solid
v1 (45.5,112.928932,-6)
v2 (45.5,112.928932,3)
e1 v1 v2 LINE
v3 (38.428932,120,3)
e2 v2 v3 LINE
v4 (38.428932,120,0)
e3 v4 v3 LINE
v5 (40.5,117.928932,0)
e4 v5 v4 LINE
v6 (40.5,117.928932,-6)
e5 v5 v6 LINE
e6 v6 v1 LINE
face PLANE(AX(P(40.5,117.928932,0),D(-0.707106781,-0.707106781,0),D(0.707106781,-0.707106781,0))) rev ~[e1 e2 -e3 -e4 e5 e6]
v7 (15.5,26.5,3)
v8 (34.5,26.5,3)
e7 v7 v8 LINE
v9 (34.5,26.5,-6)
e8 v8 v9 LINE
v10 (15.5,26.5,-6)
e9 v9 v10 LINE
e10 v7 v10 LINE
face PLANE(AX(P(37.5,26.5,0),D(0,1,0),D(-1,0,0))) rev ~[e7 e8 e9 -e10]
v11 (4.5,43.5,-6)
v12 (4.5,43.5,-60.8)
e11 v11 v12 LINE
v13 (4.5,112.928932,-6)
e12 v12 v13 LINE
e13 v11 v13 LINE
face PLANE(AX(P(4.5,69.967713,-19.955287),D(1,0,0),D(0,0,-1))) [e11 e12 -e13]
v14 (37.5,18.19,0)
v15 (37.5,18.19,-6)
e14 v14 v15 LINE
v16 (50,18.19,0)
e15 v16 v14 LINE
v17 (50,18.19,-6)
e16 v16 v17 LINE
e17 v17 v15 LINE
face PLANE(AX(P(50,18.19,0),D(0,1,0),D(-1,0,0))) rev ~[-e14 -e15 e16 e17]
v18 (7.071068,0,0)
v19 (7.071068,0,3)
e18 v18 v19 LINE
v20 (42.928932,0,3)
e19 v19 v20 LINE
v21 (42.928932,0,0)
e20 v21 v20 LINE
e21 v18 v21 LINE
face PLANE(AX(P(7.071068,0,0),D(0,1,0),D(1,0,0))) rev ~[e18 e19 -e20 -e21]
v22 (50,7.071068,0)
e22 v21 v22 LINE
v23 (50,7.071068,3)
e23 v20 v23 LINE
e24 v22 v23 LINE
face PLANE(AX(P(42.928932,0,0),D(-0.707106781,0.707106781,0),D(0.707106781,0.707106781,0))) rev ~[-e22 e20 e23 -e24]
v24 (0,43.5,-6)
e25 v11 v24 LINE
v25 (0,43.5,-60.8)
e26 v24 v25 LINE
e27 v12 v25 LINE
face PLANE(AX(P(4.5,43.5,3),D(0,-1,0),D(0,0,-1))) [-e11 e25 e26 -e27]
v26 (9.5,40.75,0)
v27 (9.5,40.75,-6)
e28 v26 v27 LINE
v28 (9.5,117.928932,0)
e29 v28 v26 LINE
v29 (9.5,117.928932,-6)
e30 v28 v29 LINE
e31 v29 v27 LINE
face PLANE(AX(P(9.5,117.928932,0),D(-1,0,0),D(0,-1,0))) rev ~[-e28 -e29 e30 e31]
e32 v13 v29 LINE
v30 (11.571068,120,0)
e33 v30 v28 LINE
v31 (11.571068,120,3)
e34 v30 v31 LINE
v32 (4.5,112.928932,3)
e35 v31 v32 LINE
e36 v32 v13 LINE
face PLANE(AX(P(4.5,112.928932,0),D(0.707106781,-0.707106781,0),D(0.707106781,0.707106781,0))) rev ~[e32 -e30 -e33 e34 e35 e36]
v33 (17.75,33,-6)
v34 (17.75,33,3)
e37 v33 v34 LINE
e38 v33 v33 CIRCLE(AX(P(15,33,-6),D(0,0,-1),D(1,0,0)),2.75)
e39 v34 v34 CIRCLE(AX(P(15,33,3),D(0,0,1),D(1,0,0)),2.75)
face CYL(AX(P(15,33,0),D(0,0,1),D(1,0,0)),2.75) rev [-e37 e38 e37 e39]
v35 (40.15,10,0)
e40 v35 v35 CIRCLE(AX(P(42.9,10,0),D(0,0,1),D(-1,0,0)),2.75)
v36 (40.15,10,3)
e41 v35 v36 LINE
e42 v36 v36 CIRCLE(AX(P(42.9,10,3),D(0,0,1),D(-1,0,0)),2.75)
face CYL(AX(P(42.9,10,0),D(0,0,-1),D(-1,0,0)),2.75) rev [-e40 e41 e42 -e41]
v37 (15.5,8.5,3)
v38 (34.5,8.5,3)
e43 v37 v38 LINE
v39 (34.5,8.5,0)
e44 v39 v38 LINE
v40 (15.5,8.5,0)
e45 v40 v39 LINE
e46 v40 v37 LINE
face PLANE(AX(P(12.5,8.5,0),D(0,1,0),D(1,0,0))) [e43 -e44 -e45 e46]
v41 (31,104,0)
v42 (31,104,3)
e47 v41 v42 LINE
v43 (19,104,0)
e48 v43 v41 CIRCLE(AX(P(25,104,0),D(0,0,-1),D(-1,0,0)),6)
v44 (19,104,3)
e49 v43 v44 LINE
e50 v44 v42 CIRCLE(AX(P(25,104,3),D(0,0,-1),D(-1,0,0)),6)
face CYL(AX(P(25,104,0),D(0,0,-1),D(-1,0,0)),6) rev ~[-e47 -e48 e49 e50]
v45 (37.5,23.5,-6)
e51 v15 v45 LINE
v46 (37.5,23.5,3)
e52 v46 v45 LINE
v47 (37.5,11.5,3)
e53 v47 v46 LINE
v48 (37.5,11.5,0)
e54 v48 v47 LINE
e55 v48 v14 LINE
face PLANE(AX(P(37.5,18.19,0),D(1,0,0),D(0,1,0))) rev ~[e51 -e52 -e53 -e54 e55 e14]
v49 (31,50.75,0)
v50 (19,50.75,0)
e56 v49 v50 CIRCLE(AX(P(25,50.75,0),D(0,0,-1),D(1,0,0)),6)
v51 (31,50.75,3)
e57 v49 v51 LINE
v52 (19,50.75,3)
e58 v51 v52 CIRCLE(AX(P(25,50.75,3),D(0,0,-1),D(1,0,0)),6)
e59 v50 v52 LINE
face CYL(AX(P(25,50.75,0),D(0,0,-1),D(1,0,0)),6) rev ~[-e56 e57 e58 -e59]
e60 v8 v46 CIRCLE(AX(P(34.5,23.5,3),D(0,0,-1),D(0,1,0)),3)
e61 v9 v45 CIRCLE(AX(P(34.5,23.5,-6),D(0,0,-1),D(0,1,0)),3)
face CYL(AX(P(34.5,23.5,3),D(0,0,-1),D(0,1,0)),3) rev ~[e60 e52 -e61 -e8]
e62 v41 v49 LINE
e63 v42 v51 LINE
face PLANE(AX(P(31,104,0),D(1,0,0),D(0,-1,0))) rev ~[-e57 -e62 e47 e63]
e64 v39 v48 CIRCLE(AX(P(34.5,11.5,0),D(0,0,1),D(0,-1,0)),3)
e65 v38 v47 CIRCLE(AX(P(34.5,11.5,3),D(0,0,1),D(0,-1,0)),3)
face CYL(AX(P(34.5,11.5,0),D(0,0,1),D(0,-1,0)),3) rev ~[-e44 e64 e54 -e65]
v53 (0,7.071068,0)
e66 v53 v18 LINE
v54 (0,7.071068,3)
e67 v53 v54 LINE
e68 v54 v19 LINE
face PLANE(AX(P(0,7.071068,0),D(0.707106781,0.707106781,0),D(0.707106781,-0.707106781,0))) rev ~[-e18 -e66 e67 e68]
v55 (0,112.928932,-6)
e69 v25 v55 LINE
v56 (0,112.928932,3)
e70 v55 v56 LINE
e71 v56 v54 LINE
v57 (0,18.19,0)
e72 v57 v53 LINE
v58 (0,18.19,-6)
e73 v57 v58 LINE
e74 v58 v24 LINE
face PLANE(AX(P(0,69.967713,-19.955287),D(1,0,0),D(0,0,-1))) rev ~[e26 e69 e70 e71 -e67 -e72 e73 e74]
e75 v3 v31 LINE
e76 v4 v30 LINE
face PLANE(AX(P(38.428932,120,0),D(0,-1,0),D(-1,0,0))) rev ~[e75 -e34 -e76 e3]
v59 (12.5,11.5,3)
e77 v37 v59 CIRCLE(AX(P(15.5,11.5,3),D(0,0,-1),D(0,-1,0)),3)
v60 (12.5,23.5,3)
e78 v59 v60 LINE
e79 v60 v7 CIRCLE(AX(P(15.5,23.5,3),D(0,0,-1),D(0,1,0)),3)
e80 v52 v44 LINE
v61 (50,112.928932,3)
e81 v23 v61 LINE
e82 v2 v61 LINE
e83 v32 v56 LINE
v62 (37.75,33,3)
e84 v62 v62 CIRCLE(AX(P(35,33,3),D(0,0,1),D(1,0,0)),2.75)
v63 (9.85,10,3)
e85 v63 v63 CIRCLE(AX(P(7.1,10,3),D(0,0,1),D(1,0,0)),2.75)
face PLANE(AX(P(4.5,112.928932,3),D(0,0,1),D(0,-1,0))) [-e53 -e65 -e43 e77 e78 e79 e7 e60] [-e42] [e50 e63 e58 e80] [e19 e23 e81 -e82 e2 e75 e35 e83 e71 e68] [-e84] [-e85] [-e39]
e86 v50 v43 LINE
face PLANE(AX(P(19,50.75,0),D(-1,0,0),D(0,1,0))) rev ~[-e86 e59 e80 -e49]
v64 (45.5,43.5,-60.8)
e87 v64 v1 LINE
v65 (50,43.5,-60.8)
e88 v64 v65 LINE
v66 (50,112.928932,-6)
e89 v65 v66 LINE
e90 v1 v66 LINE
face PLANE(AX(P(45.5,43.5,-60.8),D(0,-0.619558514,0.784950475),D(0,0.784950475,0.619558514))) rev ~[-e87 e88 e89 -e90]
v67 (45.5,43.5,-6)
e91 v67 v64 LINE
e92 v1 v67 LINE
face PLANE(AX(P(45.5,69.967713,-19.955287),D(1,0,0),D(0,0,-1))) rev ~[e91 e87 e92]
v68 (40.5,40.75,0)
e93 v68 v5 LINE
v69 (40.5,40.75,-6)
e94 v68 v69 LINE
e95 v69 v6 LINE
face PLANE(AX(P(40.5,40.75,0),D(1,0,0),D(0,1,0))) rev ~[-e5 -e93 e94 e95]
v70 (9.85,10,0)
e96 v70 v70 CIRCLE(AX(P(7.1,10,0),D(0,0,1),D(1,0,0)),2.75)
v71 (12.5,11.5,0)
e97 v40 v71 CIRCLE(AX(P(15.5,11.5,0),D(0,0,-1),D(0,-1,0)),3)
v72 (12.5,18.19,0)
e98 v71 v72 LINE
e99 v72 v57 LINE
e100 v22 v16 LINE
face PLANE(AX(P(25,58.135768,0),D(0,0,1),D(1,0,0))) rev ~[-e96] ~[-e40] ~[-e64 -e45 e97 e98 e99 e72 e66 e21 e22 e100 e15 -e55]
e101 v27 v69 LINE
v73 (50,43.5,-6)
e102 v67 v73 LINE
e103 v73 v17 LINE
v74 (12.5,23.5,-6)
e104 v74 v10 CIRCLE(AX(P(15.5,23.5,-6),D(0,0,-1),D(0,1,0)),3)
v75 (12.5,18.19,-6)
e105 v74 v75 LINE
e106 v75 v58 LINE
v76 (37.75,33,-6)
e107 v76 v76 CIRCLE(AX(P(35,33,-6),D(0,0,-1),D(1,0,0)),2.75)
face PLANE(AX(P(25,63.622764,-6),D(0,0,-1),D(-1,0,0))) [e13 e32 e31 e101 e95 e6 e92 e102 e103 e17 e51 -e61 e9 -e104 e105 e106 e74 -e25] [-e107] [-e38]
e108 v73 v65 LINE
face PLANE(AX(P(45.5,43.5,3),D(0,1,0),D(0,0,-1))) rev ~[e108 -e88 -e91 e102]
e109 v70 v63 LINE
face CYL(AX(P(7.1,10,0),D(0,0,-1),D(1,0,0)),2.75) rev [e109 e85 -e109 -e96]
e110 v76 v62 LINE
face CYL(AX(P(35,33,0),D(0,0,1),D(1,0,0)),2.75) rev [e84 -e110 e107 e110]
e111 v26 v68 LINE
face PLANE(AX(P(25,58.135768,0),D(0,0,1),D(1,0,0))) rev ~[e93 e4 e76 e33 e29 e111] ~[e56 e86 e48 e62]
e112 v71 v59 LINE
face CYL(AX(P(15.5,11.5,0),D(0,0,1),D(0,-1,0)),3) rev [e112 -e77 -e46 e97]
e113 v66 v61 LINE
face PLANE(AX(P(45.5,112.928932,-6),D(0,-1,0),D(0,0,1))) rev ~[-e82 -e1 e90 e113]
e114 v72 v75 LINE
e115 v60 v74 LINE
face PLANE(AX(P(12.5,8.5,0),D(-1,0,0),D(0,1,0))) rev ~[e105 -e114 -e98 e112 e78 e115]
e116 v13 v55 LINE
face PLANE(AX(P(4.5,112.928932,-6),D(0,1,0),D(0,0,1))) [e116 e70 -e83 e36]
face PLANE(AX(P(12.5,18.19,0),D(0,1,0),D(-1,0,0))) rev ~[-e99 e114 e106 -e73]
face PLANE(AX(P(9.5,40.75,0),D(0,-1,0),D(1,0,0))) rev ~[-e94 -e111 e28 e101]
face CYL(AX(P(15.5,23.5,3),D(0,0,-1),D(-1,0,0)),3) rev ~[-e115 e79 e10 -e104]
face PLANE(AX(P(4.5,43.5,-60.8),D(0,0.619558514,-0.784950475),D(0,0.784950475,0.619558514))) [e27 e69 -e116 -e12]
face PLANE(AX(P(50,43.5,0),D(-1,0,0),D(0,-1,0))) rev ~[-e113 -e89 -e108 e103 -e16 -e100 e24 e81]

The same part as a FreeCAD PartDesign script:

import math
import FreeCAD as App
import Part
import Sketcher
from FreeCAD import Vector


def edges_at(feature, points):
    """Names of the edges that pass closest to the given points."""
    edges = feature.Shape.Edges
    near = lambda p: min(range(len(edges)), key=lambda i: edges[i].distToShape(Part.Vertex(*p))[0])
    return sorted({f"Edge{near(p) + 1}" for p in points})


def add_polygon(sketch, points):
    """Adds a closed chain of lines whose ends are joined by coincident constraints."""
    first, n = sketch.GeometryCount, len(points)
    for a, b in zip(points, points[1:] + points[:1]):
        sketch.addGeometry(Part.LineSegment(App.Vector(*a, 0), App.Vector(*b, 0)), False)
    for i in range(n):
        sketch.addConstraint(Sketcher.Constraint("Coincident", first + i, 2, first + (i + 1) % n, 1))

doc = App.newDocument("Part")
body = doc.addObject("PartDesign::Body", "Body")

# Sketch on XY plane
sketch1 = body.newObject("Sketcher::SketchObject", "Sketch")
sketch1.AttachmentSupport = (doc.getObject("XY_Plane"), [""])
sketch1.MapMode = "FlatFace"
add_polygon(sketch1, [(7.1, 0), (42.9, 0), (50, 7.1), (50, 43.5), (45.5, 48), (45.5, 112.9), (38.4, 120), (11.6, 120), (4.5, 112.9), (4.5, 48), (0, 43.5), (0, 7.1)])  # lines 0-11
sketch1.addGeometry(Part.Circle(Vector(7.1, 10, 0), Vector(0, 0, 1), 2.8), False)  # 12
add_polygon(sketch1, [(37.5, 8.5), (12.5, 8.5), (12.5, 26.5), (37.5, 26.5)])  # lines 13-16
sketch1.addGeometry(Part.Circle(Vector(42.9, 10, 0), Vector(0, 0, 1), 2.8), False)  # 17
sketch1.addGeometry(Part.ArcOfCircle(Part.Circle(Vector(25, 50.8, 0), Vector(0, 0, 1), 6), math.radians(180), math.radians(360)), False)  # 18
sketch1.addGeometry(Part.LineSegment(Vector(19, 50.8, 0), Vector(19, 104, 0)), False)  # 19
sketch1.addGeometry(Part.ArcOfCircle(Part.Circle(Vector(25, 104, 0), Vector(0, 0, 1), 6), math.radians(0), math.radians(180)), False)  # 20
sketch1.addGeometry(Part.LineSegment(Vector(31, 104, 0), Vector(31, 50.8, 0)), False)  # 21
sketch1.addConstraint([
    Sketcher.Constraint("Tangent", 18, 1, 19, 1),
    Sketcher.Constraint("Tangent", 19, 2, 20, 2),
    Sketcher.Constraint("Tangent", 20, 1, 21, 1),
    Sketcher.Constraint("Tangent", 21, 2, 18, 2),
    Sketcher.Constraint("Horizontal", 0),
    Sketcher.Constraint("Vertical", 2),
    Sketcher.Constraint("Vertical", 4),
    Sketcher.Constraint("Horizontal", 6),
    Sketcher.Constraint("Vertical", 8),
    Sketcher.Constraint("Vertical", 10),
    Sketcher.Constraint("Horizontal", 13),
    Sketcher.Constraint("Vertical", 14),
    Sketcher.Constraint("Horizontal", 15),
    Sketcher.Constraint("Vertical", 16),
    Sketcher.Constraint("Vertical", 19),
    Sketcher.Constraint("Vertical", 21),
    Sketcher.Constraint("Equal", 12, 17),
    Sketcher.Constraint("PointOnObject", 0, 2, -1),
    Sketcher.Constraint("PointOnObject", 9, 2, -2),
    Sketcher.Constraint("Perpendicular", 1, 3),
    Sketcher.Constraint("Parallel", 3, 5),
    Sketcher.Constraint("Perpendicular", 5, 7),
    Sketcher.Constraint("Parallel", 7, 9),
    Sketcher.Constraint("Perpendicular", 9, 11),
    Sketcher.Constraint("Horizontal", 12, 3, 17, 3),
    Sketcher.Constraint("Horizontal", 4, 2, 7, 2),
    Sketcher.Constraint("Horizontal", 3, 2, 8, 2),
    Sketcher.Constraint("Horizontal", 2, 2, 9, 2),
    Sketcher.Constraint("Horizontal", 1, 2, 10, 2),
    Sketcher.Constraint("Equal", 1, 5),
    Sketcher.Constraint("Equal", 5, 7),
    Sketcher.Constraint("Radius", 18, 6.0),
    Sketcher.Constraint("Diameter", 12, 5.5),
    Sketcher.Constraint("DistanceX", 13, 2, 13, 1, 25.0),
    Sketcher.Constraint("DistanceY", 14, 1, 14, 2, 18.0),
    Sketcher.Constraint("Distance", 1, 10.0),
    Sketcher.Constraint("DistanceY", -1, 1, 12, 3, 10.0),
    Sketcher.Constraint("DistanceX", -1, 1, 18, 3, 25.0),
    Sketcher.Constraint("DistanceY", -1, 1, 20, 3, 104.0),
    Sketcher.Constraint("DistanceX", -1, 1, 1, 2, 50.0),
    Sketcher.Constraint("DistanceY", -1, 1, 3, 2, 48.0),
    Sketcher.Constraint("DistanceY", -1, 1, 5, 2, 120.0),
    Sketcher.Constraint("DistanceX", 7, 2, 4, 2, 41.0),
    Sketcher.Constraint("DistanceY", 14, 2, 9, 2, 17.0),
    Sketcher.Constraint("DistanceX", 8, 2, 14, 2, 8.0),
    Sketcher.Constraint("DistanceY", 19, 1, 19, 2, 53.25),
    Sketcher.Constraint("DistanceX", -1, 1, 12, 3, 7.1),
    Sketcher.Constraint("DistanceX", -1, 1, 17, 3, 42.9),
])
pad1 = body.newObject("PartDesign::Pad", "Pad")
pad1.Profile = sketch1
pad1.Length = 3

# Sketch on XY plane
sketch2 = body.newObject("Sketcher::SketchObject", "Sketch001")
sketch2.AttachmentSupport = (doc.getObject("XY_Plane"), [""])
sketch2.MapMode = "FlatFace"
sketch2.AttachmentOffset = App.Placement(Vector(0, 0, 3), App.Rotation())
sketch2.addGeometry(Part.Circle(Vector(15, 33, 0), Vector(0, 0, 1), 2.8), False)
sketch2.addConstraint([
    Sketcher.Constraint("Diameter", 0, 5.5),
    Sketcher.Constraint("DistanceX", -1, 1, 0, 3, 15.0),
    Sketcher.Constraint("DistanceY", -1, 1, 0, 3, 33.0),
])
pocket1 = body.newObject("PartDesign::Pocket", "Pocket")
pocket1.Profile = sketch2
pocket1.Type = "UpToFirst"

# Sketch on XY plane
sketch3 = body.newObject("Sketcher::SketchObject", "Sketch002")
sketch3.AttachmentSupport = (doc.getObject("XY_Plane"), [""])
sketch3.MapMode = "FlatFace"
sketch3.AttachmentOffset = App.Placement(Vector(0, 0, 3), App.Rotation())
sketch3.addGeometry(Part.Circle(Vector(35, 33, 0), Vector(0, 0, 1), 2.8), False)
sketch3.addConstraint([
    Sketcher.Constraint("Diameter", 0, 5.5),
    Sketcher.Constraint("DistanceX", -1, 1, 0, 3, 35.0),
    Sketcher.Constraint("DistanceY", -1, 1, 0, 3, 33.0),
])
pocket2 = body.newObject("PartDesign::Pocket", "Pocket001")
pocket2.Profile = sketch3
pocket2.Type = "UpToFirst"

# Sketch on XY plane
sketch4 = body.newObject("Sketcher::SketchObject", "Sketch003")
sketch4.AttachmentSupport = (doc.getObject("XY_Plane"), [""])
sketch4.MapMode = "FlatFace"
add_polygon(sketch4, [(50, 18.2), (37.5, 18.2), (37.5, 26.5), (12.5, 26.5), (12.5, 18.2), (0, 18.2), (0, 43.5), (4.5, 48), (4.5, 112.9), (9.5, 117.9), (9.5, 40.8), (40.5, 40.8), (40.5, 117.9), (45.5, 112.9), (45.5, 48), (50, 43.5)])  # lines 0-15
sketch4.addGeometry(Part.Circle(Vector(35, 33, 0), Vector(0, 0, 1), 2.8), False)  # 16
sketch4.addGeometry(Part.Circle(Vector(15, 33, 0), Vector(0, 0, 1), 2.8), False)  # 17
sketch4.addConstraint([
    Sketcher.Constraint("Horizontal", 0),
    Sketcher.Constraint("Vertical", 1),
    Sketcher.Constraint("Horizontal", 2),
    Sketcher.Constraint("Vertical", 3),
    Sketcher.Constraint("Horizontal", 4),
    Sketcher.Constraint("Vertical", 5),
    Sketcher.Constraint("Vertical", 7),
    Sketcher.Constraint("Vertical", 9),
    Sketcher.Constraint("Horizontal", 10),
    Sketcher.Constraint("Vertical", 11),
    Sketcher.Constraint("Vertical", 13),
    Sketcher.Constraint("Vertical", 15),
    Sketcher.Constraint("Equal", 16, 17),
    Sketcher.Constraint("PointOnObject", 4, 2, -2),
    Sketcher.Constraint("Parallel", 6, 8),
    Sketcher.Constraint("Perpendicular", 8, 12),
    Sketcher.Constraint("Parallel", 12, 14),
    Sketcher.Constraint("Horizontal", 16, 3, 17, 3),
    Sketcher.Constraint("Horizontal", 0, 2, 3, 2),
    Sketcher.Constraint("Horizontal", 8, 2, 11, 2),
    Sketcher.Constraint("Horizontal", 7, 2, 12, 2),
    Sketcher.Constraint("Horizontal", 6, 2, 13, 2),
    Sketcher.Constraint("Horizontal", 5, 2, 14, 2),
    Sketcher.Constraint("Equal", 0, 4),
    Sketcher.Constraint("Equal", 8, 12),
    Sketcher.Constraint("Diameter", 16, 5.5),
    Sketcher.Constraint("DistanceX", 2, 2, 2, 1, 25.0),
    Sketcher.Constraint("DistanceX", 10, 1, 10, 2, 31.0),
    Sketcher.Constraint("DistanceX", 0, 2, 0, 1, 12.5),
    Sketcher.Constraint("DistanceX", -1, 1, 16, 3, 35.0),
    Sketcher.Constraint("DistanceY", -1, 1, 16, 3, 33.0),
    Sketcher.Constraint("DistanceX", -1, 1, 17, 3, 15.0),
    Sketcher.Constraint("DistanceY", -1, 1, 6, 2, 48.0),
    Sketcher.Constraint("DistanceY", 2, 2, 5, 2, 17.0),
    Sketcher.Constraint("DistanceX", 6, 2, 2, 2, 8.0),
    Sketcher.Constraint("DistanceY", 1, 1, 1, 2, 8.31),
    Sketcher.Constraint("DistanceY", -1, 1, 9, 2, 40.75),
    Sketcher.Constraint("DistanceY", 7, 1, 7, 2, 64.928932),
])
pad2 = body.newObject("PartDesign::Pad", "Pad001")
pad2.Profile = sketch4
pad2.Length = 6
pad2.Reversed = True
doc.recompute()

fillet = body.newObject("PartDesign::Fillet", "Fillet")
fillet.Base = (pad2, edges_at(pad2, [
    (37.5, 8.5, 1.5),
    (37.5, 26.5, -1.5),
    (12.5, 26.5, -1.5),
    (12.5, 8.5, 1.5),
]))
fillet.Radius = 3

# Sketch on YZ plane
sketch5 = body.newObject("Sketcher::SketchObject", "Sketch004")
sketch5.AttachmentSupport = (doc.getObject("YZ_Plane"), [""])
sketch5.MapMode = "FlatFace"
sketch5.AttachmentOffset = App.Placement(Vector(0, 0, 45.5), App.Rotation())
add_polygon(sketch5, [(44, 3), (44, -61), (113, -6), (113, 3)])  # lines 0-3
sketch5.addConstraint([
    Sketcher.Constraint("Vertical", 0),
    Sketcher.Constraint("Vertical", 2),
    Sketcher.Constraint("Horizontal", 3),
    Sketcher.Constraint("DistanceY", 2, 1, 2, 2, 9.0),
    Sketcher.Constraint("DistanceY", 0, 2, 0, 1, 63.8),
    Sketcher.Constraint("DistanceY", 1, 2, -1, 1, 6.0),
    Sketcher.Constraint("DistanceX", -1, 1, 0, 2, 43.5),
    Sketcher.Constraint("Distance", 1, 88.45008),
])
pad3 = body.newObject("PartDesign::Pad", "Pad002")
pad3.Profile = sketch5
pad3.Length = 4.5

# Sketch on YZ plane
sketch6 = body.newObject("Sketcher::SketchObject", "Sketch005")
sketch6.AttachmentSupport = (doc.getObject("YZ_Plane"), [""])
sketch6.MapMode = "FlatFace"
sketch6.AttachmentOffset = App.Placement(Vector(0, 0, 4.5), App.Rotation())
add_polygon(sketch6, [(44, 3), (113, 3), (113, -6), (44, -61)])  # lines 0-3
sketch6.addConstraint([
    Sketcher.Constraint("Horizontal", 0),
    Sketcher.Constraint("Vertical", 1),
    Sketcher.Constraint("Vertical", 3),
    Sketcher.Constraint("DistanceY", 1, 2, 1, 1, 9.0),
    Sketcher.Constraint("DistanceY", 3, 1, 3, 2, 63.8),
    Sketcher.Constraint("DistanceY", -1, 1, 0, 2, 3.0),
    Sketcher.Constraint("DistanceX", -1, 1, 2, 2, 43.5),
    Sketcher.Constraint("Distance", 2, 88.45008),
])
pad4 = body.newObject("PartDesign::Pad", "Pad003")
pad4.Profile = sketch6
pad4.Length = 4.5
pad4.Reversed = True

doc.recompute()
